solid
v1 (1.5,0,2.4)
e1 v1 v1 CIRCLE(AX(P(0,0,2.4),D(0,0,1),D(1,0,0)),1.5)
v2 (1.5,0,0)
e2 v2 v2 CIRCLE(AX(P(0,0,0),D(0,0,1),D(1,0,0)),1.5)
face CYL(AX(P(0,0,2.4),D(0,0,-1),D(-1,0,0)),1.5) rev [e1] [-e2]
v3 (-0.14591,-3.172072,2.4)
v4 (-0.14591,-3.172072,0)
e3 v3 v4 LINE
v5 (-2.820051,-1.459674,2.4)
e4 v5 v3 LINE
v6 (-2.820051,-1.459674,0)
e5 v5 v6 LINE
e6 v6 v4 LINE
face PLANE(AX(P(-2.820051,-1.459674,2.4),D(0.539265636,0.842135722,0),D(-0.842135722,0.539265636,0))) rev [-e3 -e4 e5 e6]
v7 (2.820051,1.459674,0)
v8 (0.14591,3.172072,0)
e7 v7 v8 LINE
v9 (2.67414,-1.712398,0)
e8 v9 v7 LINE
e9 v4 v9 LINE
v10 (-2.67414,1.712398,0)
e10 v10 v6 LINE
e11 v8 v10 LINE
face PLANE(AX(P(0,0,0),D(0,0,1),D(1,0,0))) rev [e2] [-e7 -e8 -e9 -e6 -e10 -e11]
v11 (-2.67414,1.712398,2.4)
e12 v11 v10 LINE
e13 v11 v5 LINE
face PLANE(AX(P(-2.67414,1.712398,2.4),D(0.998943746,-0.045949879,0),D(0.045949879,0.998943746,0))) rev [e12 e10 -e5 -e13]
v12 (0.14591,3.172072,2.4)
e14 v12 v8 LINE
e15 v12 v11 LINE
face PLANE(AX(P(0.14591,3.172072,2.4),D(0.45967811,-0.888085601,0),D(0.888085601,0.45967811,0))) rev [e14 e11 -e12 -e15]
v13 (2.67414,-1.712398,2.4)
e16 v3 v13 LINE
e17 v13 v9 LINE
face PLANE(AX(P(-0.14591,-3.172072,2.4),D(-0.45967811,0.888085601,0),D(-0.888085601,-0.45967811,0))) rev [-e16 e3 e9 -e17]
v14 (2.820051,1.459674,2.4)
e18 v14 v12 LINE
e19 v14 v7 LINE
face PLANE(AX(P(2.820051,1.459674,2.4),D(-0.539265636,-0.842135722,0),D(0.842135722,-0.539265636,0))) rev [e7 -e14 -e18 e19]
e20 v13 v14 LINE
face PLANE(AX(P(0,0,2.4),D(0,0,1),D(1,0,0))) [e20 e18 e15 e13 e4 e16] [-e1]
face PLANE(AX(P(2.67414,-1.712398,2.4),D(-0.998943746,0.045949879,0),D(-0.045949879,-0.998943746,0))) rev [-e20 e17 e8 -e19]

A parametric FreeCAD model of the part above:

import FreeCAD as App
import Part
import Sketcher
from FreeCAD import Vector

doc = App.newDocument("Part")
body = doc.addObject("PartDesign::Body", "Body")

sketch1 = body.newObject("Sketcher::SketchObject", "Sketch")
sketch1.AttachmentSupport = (doc.getObject("XY_Plane"), [""])
sketch1.MapMode = "FlatFace"
sketch1.addGeometry([
    Part.LineSegment(Vector(-2.8, -1.5, 0), Vector(-0.1, -3.2, 0)),
    Part.LineSegment(Vector(-0.1, -3.2, 0), Vector(2.7, -1.7, 0)),
    Part.LineSegment(Vector(2.7, -1.7, 0), Vector(2.8, 1.5, 0)),
    Part.LineSegment(Vector(2.8, 1.5, 0), Vector(0.1, 3.2, 0)),
    Part.LineSegment(Vector(0.1, 3.2, 0), Vector(-2.7, 1.7, 0)),
    Part.LineSegment(Vector(-2.7, 1.7, 0), Vector(-2.8, -1.5, 0)),
    Part.Circle(Vector(0, 0, 0), Vector(0, 0, 1), 1.5),
], False)
sketch1.addConstraint([
    Sketcher.Constraint("Coincident", 0, 2, 1, 1),
    Sketcher.Constraint("Coincident", 1, 2, 2, 1),
    Sketcher.Constraint("Coincident", 2, 2, 3, 1),
    Sketcher.Constraint("Coincident", 3, 2, 4, 1),
    Sketcher.Constraint("Coincident", 4, 2, 5, 1),
    Sketcher.Constraint("Coincident", 5, 2, 0, 1),
    Sketcher.Constraint("Coincident", 6, 3, -1, 1),
    Sketcher.Constraint("Symmetric", 0, 2, 3, 2, -1, 1),
    Sketcher.Constraint("Symmetric", 1, 2, 4, 2, -1, 1),
    Sketcher.Constraint("Symmetric", 2, 2, 5, 2, -1, 1),
    Sketcher.Constraint("Equal", 0, 1),
    Sketcher.Constraint("Equal", 1, 2),
    Sketcher.Constraint("Diameter", 6, 3.0),
    Sketcher.Constraint("DistanceY", 1, 2, -1, 1, 1.712398),
    Sketcher.Constraint("DistanceY", 2, 2, 3, 2, 1.712398),
    Sketcher.Constraint("DistanceX", 0, 2, -1, 1, 0.14591),
    Sketcher.Constraint("DistanceX", -1, 1, 1, 2, 2.67414),
])
pad1 = body.newObject("PartDesign::Pad", "Pad")
pad1.Profile = sketch1
pad1.Length = 2.4

doc.recompute()
